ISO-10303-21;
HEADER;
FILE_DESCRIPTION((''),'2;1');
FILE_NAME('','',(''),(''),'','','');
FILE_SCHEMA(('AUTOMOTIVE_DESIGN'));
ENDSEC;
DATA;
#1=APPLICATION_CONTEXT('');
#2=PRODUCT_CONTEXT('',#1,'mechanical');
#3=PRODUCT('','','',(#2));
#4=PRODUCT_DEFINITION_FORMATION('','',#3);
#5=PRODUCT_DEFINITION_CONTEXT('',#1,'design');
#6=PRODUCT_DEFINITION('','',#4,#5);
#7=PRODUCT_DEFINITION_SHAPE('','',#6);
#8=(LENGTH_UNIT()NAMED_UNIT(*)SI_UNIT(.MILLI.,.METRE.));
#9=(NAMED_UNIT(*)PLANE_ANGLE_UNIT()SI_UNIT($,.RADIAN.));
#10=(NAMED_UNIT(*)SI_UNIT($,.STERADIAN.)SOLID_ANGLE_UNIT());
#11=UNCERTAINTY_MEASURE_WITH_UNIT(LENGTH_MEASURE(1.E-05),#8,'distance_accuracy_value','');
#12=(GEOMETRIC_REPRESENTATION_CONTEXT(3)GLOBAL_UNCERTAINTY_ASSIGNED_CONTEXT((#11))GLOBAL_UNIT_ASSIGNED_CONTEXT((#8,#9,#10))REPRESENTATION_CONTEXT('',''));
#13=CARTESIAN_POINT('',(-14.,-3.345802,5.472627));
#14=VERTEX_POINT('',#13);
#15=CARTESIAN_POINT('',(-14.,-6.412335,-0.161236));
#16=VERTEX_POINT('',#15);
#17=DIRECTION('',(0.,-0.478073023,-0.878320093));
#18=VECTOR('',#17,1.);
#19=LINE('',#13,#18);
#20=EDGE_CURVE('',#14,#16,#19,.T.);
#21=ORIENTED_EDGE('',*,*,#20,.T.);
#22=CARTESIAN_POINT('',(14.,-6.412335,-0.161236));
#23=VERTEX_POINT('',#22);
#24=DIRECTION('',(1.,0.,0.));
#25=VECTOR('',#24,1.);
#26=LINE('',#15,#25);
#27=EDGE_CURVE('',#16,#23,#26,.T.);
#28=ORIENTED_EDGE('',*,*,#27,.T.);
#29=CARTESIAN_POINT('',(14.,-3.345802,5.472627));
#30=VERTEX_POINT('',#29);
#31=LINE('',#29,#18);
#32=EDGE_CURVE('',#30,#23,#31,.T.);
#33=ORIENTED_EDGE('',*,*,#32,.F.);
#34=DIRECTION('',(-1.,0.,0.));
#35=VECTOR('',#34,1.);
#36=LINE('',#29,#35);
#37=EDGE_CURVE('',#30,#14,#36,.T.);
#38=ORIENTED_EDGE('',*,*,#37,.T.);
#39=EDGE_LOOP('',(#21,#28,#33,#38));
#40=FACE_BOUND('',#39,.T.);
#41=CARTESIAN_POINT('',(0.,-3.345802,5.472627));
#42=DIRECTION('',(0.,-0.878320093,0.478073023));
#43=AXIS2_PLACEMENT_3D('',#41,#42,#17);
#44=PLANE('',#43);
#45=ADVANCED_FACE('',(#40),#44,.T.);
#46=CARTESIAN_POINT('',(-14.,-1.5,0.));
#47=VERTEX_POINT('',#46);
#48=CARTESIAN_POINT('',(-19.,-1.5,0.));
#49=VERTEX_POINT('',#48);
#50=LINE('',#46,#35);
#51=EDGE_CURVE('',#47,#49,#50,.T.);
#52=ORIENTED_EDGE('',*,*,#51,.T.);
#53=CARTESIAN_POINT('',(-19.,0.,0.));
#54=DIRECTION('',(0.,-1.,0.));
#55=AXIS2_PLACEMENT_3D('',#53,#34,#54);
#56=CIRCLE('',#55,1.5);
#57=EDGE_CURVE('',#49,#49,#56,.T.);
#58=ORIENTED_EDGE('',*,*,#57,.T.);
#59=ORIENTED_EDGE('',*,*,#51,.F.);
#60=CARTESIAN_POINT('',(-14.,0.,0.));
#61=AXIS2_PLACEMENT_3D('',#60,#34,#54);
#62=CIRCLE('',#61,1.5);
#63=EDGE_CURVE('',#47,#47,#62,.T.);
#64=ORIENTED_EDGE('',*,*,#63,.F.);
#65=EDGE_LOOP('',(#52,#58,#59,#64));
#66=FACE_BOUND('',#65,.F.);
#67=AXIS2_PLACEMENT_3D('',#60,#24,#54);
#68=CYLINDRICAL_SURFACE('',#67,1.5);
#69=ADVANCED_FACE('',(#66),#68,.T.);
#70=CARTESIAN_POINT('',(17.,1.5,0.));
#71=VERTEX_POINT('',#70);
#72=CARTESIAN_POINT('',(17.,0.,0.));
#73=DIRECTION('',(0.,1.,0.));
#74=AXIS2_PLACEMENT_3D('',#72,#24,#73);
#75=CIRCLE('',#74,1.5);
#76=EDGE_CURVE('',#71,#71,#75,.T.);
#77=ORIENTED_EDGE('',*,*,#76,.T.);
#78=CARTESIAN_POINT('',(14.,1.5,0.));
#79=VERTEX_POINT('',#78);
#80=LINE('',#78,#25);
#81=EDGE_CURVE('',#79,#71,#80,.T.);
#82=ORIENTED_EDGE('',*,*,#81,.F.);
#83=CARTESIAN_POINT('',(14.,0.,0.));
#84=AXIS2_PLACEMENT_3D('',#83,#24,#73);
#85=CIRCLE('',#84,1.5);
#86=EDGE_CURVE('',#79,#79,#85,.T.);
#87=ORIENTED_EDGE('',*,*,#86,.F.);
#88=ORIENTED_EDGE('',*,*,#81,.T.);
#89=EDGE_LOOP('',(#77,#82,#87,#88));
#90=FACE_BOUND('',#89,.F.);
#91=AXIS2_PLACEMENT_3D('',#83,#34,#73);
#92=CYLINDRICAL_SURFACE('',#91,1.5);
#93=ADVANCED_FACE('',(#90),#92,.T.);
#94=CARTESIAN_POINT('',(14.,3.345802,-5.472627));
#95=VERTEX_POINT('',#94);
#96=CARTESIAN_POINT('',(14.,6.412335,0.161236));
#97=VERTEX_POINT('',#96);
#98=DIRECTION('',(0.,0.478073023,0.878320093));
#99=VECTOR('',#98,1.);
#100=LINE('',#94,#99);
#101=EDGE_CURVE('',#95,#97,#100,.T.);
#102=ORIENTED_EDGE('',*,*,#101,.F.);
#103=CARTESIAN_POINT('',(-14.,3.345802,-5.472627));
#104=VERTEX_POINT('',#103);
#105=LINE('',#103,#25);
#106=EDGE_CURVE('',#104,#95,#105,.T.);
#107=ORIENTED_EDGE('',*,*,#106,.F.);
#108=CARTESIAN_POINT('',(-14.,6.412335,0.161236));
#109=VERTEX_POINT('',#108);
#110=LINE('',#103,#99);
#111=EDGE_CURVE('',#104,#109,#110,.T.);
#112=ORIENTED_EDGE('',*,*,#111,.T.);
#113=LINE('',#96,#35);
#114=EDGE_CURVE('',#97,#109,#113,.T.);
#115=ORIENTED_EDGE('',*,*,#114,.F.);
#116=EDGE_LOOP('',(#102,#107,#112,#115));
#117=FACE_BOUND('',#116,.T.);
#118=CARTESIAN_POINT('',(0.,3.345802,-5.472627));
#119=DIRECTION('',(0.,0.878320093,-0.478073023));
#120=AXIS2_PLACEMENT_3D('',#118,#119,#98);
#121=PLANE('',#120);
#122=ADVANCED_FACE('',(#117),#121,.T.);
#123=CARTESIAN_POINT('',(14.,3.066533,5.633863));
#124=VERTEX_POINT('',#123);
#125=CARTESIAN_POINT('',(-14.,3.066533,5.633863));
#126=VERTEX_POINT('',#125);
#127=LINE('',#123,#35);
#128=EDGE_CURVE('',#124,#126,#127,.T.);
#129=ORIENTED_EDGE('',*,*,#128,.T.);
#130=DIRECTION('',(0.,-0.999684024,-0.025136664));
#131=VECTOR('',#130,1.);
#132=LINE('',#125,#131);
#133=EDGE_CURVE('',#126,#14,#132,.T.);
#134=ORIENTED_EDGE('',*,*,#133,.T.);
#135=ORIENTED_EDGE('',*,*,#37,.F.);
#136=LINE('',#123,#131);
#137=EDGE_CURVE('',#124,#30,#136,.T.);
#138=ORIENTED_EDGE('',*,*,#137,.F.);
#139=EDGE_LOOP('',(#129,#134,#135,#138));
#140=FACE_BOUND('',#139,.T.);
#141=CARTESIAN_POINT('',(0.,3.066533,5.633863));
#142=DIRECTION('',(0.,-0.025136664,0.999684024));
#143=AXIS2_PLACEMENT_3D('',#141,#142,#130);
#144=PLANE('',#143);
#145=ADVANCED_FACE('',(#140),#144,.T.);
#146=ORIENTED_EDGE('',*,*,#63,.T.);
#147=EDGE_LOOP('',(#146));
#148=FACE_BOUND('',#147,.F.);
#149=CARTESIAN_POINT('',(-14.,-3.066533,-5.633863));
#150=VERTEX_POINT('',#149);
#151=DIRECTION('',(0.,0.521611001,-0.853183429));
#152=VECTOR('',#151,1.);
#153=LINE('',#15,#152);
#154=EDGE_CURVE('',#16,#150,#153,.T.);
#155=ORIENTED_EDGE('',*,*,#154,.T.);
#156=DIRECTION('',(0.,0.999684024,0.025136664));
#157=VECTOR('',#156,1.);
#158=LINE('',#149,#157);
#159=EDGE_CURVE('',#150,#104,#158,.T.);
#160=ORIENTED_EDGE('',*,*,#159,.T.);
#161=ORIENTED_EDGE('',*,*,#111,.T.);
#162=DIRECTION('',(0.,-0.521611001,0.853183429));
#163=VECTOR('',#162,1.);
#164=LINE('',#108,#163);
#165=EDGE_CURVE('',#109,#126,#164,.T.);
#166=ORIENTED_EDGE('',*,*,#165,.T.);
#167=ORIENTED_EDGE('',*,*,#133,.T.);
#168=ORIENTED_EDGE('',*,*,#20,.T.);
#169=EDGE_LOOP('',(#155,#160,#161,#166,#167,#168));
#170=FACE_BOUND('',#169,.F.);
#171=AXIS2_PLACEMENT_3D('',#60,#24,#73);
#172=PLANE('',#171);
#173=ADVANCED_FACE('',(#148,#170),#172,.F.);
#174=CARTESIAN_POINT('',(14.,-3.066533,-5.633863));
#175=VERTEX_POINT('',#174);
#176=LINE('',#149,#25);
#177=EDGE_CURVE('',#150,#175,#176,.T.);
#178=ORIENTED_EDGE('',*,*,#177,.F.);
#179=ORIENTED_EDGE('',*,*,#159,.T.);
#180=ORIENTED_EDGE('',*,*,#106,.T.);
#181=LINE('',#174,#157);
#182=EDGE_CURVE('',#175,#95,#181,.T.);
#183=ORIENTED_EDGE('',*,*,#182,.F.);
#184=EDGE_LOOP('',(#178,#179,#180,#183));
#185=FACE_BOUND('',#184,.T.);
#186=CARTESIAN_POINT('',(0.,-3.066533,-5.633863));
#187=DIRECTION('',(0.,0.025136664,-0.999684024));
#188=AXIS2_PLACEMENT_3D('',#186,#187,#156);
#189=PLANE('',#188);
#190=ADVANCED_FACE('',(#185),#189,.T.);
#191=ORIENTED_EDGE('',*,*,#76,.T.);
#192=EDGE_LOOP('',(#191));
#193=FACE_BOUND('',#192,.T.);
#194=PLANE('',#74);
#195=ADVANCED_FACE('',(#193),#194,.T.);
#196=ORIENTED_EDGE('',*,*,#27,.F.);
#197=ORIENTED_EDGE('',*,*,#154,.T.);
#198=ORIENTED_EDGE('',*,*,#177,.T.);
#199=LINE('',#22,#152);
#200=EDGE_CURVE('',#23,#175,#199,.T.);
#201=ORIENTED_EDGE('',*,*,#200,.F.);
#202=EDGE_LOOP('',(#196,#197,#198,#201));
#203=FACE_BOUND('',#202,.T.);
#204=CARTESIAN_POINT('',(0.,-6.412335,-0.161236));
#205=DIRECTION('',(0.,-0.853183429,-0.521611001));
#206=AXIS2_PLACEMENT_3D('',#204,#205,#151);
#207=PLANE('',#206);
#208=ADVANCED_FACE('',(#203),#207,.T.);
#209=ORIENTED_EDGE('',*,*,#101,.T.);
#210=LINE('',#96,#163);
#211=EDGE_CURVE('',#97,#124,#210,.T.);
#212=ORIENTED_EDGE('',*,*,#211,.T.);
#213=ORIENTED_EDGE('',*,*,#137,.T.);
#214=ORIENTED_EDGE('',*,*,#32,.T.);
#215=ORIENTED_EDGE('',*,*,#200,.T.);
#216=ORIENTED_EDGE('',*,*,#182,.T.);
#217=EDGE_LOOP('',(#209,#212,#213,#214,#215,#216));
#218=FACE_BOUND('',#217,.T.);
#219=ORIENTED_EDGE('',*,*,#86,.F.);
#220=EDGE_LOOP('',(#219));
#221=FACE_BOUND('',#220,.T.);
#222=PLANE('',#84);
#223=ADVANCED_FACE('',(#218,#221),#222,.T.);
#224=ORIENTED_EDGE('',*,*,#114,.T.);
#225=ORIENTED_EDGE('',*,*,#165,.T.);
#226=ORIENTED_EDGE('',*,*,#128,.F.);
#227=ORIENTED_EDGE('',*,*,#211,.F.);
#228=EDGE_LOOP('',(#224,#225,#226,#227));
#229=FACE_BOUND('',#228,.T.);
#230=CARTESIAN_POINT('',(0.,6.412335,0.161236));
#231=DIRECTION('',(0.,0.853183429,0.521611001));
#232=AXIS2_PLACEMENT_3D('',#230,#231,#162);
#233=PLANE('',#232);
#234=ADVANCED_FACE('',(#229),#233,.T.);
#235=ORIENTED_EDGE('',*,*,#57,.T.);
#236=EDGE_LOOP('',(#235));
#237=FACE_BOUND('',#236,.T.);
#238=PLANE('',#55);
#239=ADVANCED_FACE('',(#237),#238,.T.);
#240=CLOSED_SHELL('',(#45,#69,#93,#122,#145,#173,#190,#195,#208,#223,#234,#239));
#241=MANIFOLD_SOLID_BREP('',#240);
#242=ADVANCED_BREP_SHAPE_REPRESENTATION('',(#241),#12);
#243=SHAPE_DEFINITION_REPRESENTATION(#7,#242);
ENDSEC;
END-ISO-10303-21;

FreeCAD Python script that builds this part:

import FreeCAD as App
import Part
import Sketcher
Q = App.Units.Quantity


def add_polygon(sketch, points):
    """Adds a closed chain of lines whose ends are joined by coincident constraints."""
    first, n = sketch.GeometryCount, len(points)
    for a, b in zip(points, points[1:] + points[:1]):
        sketch.addGeometry(Part.LineSegment(App.Vector(*a, 0), App.Vector(*b, 0)), False)
    for i in range(n):
        sketch.addConstraint(Sketcher.Constraint("Coincident", first + i, 2, first + (i + 1) % n, 1))

doc = App.newDocument("Part")
body = doc.addObject("PartDesign::Body", "Body")

sketch1 = body.newObject("Sketcher::SketchObject", "Sketch")
sketch1.AttachmentSupport = (doc.getObject("YZ_Plane"), [""])
sketch1.MapMode = "FlatFace"
add_polygon(sketch1, [(-3, 5), (-6, 0), (-3, -6), (3, -5), (6, 0), (3, 6)])
sketch1.addConstraint([
    Sketcher.Constraint("Symmetric", 0, 2, 3, 2, -1, 1),
    Sketcher.Constraint("Symmetric", 1, 2, 4, 2, -1, 1),
    Sketcher.Constraint("Symmetric", 2, 2, 5, 2, -1, 1),
    Sketcher.Constraint("Equal", 0, 1),
    Sketcher.Constraint("Equal", 1, 2),
    Sketcher.Constraint("DistanceX", -1, 1, 2, 2, Q("3.345802 mm")),
    Sketcher.Constraint("DistanceX", 0, 2, 1, 2, Q("3.345802 mm")),
    Sketcher.Constraint("DistanceY", 1, 2, 3, 2, Q("5.795098 mm")),
    Sketcher.Constraint("Distance", 0, Q("6.414361 mm")),
])
pad1 = body.newObject("PartDesign::Pad", "Pad")
pad1.Profile = sketch1
pad1.Length = 28
pad1.Midplane = True

sketch2 = body.newObject("Sketcher::SketchObject", "Sketch001")
sketch2.AttachmentSupport = (doc.getObject("YZ_Plane"), [""])
sketch2.MapMode = "FlatFace"
sketch2.AttachmentOffset = App.Placement(App.Vector(0, 0, 14), App.Rotation())
sketch2.addGeometry(Part.Circle(App.Vector(0, 0, 0), App.Vector(0, 0, 1), 1.5), False)
sketch2.addConstraint([
    Sketcher.Constraint("Coincident", 0, 3, -1, 1),
    Sketcher.Constraint("Diameter", 0, Q("3 mm")),
])
pad2 = body.newObject("PartDesign::Pad", "Pad001")
pad2.Profile = sketch2
pad2.Length = 3

sketch3 = body.newObject("Sketcher::SketchObject", "Sketch002")
sketch3.AttachmentSupport = (doc.getObject("YZ_Plane"), [""])
sketch3.MapMode = "FlatFace"
sketch3.AttachmentOffset = App.Placement(App.Vector(0, 0, -14), App.Rotation())
sketch3.addGeometry(Part.Circle(App.Vector(0, 0, 0), App.Vector(0, 0, 1), 1.5), False)
sketch3.addConstraint([
    Sketcher.Constraint("Coincident", 0, 3, -1, 1),
    Sketcher.Constraint("Diameter", 0, Q("3 mm")),
])
pad3 = body.newObject("PartDesign::Pad", "Pad002")
pad3.Profile = sketch3
pad3.Length = 5
pad3.Reversed = True

doc.recompute()
